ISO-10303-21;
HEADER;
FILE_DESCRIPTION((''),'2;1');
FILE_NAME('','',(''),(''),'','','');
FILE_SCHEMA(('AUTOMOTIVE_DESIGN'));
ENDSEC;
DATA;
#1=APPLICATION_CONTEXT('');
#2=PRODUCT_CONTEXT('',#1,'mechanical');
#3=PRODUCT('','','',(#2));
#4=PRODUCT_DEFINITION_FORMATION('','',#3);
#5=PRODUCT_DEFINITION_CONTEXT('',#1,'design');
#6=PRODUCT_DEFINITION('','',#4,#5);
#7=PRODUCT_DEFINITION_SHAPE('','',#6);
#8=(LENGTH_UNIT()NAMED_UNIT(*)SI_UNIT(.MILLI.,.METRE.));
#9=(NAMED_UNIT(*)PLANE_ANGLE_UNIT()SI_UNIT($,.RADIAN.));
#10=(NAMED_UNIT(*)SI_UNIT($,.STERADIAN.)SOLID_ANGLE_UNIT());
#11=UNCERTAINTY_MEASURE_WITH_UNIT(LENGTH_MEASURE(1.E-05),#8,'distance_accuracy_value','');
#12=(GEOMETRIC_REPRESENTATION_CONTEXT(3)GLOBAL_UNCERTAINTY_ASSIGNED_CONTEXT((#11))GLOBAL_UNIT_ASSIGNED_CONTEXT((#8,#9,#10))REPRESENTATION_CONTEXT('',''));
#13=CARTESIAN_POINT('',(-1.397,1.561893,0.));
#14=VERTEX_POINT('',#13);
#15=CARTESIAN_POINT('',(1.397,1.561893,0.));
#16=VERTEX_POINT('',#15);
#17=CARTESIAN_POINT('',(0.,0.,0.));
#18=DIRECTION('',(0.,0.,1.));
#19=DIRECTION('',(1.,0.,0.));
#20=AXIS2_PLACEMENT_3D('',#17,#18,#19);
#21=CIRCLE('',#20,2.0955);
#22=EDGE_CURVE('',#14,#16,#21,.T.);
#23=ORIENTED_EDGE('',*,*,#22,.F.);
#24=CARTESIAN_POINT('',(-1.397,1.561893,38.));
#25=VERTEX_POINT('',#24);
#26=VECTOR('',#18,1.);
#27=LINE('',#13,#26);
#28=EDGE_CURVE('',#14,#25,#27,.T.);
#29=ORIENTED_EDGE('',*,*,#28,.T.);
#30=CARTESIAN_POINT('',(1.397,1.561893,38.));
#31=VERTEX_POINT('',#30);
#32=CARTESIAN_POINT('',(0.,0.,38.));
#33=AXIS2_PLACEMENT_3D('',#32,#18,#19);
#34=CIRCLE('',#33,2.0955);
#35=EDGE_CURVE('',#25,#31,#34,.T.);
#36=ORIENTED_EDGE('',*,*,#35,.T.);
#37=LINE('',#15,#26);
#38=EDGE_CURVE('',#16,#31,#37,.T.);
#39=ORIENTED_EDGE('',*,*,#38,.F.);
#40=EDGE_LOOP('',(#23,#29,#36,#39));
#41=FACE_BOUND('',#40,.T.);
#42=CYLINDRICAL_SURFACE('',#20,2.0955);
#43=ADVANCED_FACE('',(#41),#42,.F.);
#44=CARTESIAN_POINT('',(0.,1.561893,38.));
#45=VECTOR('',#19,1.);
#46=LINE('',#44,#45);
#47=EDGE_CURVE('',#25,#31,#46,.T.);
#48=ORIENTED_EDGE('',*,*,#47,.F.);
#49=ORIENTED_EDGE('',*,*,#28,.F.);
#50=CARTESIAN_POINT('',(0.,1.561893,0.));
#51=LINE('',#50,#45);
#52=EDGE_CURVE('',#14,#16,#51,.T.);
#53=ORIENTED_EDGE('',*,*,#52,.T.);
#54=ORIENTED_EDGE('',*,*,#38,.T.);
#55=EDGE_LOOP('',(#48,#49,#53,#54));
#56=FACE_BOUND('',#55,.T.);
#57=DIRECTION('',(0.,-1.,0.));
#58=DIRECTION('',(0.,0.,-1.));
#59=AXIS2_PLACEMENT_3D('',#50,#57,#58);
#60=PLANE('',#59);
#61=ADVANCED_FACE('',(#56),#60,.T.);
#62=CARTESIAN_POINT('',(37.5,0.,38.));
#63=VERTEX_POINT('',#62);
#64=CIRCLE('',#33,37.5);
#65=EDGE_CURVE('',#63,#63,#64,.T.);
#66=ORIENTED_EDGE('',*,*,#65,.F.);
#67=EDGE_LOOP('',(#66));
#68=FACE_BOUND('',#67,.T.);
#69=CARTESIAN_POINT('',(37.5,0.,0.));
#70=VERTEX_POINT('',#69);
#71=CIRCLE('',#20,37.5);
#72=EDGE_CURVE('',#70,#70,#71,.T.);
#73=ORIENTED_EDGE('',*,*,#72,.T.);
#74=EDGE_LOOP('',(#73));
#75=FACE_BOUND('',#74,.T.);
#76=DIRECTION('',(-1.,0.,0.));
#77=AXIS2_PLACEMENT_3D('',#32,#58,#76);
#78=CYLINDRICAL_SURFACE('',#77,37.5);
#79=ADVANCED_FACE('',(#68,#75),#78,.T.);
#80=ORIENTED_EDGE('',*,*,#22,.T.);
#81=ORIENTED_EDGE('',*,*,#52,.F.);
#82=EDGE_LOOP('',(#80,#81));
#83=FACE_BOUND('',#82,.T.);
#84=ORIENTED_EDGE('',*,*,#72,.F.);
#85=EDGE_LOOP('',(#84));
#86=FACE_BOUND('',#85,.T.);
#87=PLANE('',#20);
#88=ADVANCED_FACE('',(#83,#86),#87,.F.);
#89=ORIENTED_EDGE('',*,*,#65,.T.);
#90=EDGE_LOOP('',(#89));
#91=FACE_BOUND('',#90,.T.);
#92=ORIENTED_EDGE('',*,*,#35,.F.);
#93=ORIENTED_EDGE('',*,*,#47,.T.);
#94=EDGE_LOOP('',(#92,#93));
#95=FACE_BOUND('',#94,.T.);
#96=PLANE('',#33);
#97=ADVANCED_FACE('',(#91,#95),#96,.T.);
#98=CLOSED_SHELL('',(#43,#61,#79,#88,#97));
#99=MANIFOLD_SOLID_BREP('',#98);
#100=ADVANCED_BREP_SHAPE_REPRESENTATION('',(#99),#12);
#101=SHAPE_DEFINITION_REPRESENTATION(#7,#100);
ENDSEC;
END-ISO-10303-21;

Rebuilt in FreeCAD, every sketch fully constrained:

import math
import FreeCAD as App
import Part
import Sketcher

doc = App.newDocument("Part")
body = doc.addObject("PartDesign::Body", "Body")

# Sketch on XY plane
sketch1 = doc.addObject("Sketcher::SketchObject", "Sketch")
body.addObject(sketch1)
sketch1.AttachmentSupport = (doc.XY_Plane, [""])
sketch1.MapMode = "FlatFace"
sketch1.addGeometry(Part.Circle(App.Vector(0, 0, 0), App.Vector(0, 0, 1), 37.5), False)
sketch1.addConstraint([
    Sketcher.Constraint("Coincident", 0, 3, -1, 1),
    Sketcher.Constraint("Diameter", 0, 75.0),
])
pad1 = doc.addObject("PartDesign::Pad", "Pad")
body.addObject(pad1)
pad1.Profile = sketch1
pad1.Length = 38

# Sketch on XY plane
sketch2 = doc.addObject("Sketcher::SketchObject", "Sketch001")
body.addObject(sketch2)
sketch2.AttachmentSupport = (doc.XY_Plane, [""])
sketch2.MapMode = "FlatFace"
sketch2.AttachmentOffset = App.Placement(App.Vector(0, 0, 38), App.Rotation())
sketch2.addGeometry([
    Part.LineSegment(App.Vector(1.397, 1.561893, 0), App.Vector(-1.397, 1.561893, 0)),
    Part.ArcOfCircle(Part.Circle(App.Vector(0, 0, 0), App.Vector(0, 0, 1), 2.0955), math.radians(131.810315), math.radians(408.189685)),
], False)
sketch2.addConstraint([
    Sketcher.Constraint("Coincident", 0, 1, 1, 2),
    Sketcher.Constraint("Coincident", 1, 1, 0, 2),
    Sketcher.Constraint("Horizontal", 0),
    Sketcher.Constraint("Coincident", 1, 3, -1, 1),
    Sketcher.Constraint("Radius", 1, 2.0955),
    Sketcher.Constraint("DistanceX", 0, 2, 0, 1, 2.794),
])
pocket1 = doc.addObject("PartDesign::Pocket", "Pocket")
body.addObject(pocket1)
pocket1.Profile = sketch2
pocket1.Type = "ThroughAll"
pocket1.Midplane = True

doc.recompute()
